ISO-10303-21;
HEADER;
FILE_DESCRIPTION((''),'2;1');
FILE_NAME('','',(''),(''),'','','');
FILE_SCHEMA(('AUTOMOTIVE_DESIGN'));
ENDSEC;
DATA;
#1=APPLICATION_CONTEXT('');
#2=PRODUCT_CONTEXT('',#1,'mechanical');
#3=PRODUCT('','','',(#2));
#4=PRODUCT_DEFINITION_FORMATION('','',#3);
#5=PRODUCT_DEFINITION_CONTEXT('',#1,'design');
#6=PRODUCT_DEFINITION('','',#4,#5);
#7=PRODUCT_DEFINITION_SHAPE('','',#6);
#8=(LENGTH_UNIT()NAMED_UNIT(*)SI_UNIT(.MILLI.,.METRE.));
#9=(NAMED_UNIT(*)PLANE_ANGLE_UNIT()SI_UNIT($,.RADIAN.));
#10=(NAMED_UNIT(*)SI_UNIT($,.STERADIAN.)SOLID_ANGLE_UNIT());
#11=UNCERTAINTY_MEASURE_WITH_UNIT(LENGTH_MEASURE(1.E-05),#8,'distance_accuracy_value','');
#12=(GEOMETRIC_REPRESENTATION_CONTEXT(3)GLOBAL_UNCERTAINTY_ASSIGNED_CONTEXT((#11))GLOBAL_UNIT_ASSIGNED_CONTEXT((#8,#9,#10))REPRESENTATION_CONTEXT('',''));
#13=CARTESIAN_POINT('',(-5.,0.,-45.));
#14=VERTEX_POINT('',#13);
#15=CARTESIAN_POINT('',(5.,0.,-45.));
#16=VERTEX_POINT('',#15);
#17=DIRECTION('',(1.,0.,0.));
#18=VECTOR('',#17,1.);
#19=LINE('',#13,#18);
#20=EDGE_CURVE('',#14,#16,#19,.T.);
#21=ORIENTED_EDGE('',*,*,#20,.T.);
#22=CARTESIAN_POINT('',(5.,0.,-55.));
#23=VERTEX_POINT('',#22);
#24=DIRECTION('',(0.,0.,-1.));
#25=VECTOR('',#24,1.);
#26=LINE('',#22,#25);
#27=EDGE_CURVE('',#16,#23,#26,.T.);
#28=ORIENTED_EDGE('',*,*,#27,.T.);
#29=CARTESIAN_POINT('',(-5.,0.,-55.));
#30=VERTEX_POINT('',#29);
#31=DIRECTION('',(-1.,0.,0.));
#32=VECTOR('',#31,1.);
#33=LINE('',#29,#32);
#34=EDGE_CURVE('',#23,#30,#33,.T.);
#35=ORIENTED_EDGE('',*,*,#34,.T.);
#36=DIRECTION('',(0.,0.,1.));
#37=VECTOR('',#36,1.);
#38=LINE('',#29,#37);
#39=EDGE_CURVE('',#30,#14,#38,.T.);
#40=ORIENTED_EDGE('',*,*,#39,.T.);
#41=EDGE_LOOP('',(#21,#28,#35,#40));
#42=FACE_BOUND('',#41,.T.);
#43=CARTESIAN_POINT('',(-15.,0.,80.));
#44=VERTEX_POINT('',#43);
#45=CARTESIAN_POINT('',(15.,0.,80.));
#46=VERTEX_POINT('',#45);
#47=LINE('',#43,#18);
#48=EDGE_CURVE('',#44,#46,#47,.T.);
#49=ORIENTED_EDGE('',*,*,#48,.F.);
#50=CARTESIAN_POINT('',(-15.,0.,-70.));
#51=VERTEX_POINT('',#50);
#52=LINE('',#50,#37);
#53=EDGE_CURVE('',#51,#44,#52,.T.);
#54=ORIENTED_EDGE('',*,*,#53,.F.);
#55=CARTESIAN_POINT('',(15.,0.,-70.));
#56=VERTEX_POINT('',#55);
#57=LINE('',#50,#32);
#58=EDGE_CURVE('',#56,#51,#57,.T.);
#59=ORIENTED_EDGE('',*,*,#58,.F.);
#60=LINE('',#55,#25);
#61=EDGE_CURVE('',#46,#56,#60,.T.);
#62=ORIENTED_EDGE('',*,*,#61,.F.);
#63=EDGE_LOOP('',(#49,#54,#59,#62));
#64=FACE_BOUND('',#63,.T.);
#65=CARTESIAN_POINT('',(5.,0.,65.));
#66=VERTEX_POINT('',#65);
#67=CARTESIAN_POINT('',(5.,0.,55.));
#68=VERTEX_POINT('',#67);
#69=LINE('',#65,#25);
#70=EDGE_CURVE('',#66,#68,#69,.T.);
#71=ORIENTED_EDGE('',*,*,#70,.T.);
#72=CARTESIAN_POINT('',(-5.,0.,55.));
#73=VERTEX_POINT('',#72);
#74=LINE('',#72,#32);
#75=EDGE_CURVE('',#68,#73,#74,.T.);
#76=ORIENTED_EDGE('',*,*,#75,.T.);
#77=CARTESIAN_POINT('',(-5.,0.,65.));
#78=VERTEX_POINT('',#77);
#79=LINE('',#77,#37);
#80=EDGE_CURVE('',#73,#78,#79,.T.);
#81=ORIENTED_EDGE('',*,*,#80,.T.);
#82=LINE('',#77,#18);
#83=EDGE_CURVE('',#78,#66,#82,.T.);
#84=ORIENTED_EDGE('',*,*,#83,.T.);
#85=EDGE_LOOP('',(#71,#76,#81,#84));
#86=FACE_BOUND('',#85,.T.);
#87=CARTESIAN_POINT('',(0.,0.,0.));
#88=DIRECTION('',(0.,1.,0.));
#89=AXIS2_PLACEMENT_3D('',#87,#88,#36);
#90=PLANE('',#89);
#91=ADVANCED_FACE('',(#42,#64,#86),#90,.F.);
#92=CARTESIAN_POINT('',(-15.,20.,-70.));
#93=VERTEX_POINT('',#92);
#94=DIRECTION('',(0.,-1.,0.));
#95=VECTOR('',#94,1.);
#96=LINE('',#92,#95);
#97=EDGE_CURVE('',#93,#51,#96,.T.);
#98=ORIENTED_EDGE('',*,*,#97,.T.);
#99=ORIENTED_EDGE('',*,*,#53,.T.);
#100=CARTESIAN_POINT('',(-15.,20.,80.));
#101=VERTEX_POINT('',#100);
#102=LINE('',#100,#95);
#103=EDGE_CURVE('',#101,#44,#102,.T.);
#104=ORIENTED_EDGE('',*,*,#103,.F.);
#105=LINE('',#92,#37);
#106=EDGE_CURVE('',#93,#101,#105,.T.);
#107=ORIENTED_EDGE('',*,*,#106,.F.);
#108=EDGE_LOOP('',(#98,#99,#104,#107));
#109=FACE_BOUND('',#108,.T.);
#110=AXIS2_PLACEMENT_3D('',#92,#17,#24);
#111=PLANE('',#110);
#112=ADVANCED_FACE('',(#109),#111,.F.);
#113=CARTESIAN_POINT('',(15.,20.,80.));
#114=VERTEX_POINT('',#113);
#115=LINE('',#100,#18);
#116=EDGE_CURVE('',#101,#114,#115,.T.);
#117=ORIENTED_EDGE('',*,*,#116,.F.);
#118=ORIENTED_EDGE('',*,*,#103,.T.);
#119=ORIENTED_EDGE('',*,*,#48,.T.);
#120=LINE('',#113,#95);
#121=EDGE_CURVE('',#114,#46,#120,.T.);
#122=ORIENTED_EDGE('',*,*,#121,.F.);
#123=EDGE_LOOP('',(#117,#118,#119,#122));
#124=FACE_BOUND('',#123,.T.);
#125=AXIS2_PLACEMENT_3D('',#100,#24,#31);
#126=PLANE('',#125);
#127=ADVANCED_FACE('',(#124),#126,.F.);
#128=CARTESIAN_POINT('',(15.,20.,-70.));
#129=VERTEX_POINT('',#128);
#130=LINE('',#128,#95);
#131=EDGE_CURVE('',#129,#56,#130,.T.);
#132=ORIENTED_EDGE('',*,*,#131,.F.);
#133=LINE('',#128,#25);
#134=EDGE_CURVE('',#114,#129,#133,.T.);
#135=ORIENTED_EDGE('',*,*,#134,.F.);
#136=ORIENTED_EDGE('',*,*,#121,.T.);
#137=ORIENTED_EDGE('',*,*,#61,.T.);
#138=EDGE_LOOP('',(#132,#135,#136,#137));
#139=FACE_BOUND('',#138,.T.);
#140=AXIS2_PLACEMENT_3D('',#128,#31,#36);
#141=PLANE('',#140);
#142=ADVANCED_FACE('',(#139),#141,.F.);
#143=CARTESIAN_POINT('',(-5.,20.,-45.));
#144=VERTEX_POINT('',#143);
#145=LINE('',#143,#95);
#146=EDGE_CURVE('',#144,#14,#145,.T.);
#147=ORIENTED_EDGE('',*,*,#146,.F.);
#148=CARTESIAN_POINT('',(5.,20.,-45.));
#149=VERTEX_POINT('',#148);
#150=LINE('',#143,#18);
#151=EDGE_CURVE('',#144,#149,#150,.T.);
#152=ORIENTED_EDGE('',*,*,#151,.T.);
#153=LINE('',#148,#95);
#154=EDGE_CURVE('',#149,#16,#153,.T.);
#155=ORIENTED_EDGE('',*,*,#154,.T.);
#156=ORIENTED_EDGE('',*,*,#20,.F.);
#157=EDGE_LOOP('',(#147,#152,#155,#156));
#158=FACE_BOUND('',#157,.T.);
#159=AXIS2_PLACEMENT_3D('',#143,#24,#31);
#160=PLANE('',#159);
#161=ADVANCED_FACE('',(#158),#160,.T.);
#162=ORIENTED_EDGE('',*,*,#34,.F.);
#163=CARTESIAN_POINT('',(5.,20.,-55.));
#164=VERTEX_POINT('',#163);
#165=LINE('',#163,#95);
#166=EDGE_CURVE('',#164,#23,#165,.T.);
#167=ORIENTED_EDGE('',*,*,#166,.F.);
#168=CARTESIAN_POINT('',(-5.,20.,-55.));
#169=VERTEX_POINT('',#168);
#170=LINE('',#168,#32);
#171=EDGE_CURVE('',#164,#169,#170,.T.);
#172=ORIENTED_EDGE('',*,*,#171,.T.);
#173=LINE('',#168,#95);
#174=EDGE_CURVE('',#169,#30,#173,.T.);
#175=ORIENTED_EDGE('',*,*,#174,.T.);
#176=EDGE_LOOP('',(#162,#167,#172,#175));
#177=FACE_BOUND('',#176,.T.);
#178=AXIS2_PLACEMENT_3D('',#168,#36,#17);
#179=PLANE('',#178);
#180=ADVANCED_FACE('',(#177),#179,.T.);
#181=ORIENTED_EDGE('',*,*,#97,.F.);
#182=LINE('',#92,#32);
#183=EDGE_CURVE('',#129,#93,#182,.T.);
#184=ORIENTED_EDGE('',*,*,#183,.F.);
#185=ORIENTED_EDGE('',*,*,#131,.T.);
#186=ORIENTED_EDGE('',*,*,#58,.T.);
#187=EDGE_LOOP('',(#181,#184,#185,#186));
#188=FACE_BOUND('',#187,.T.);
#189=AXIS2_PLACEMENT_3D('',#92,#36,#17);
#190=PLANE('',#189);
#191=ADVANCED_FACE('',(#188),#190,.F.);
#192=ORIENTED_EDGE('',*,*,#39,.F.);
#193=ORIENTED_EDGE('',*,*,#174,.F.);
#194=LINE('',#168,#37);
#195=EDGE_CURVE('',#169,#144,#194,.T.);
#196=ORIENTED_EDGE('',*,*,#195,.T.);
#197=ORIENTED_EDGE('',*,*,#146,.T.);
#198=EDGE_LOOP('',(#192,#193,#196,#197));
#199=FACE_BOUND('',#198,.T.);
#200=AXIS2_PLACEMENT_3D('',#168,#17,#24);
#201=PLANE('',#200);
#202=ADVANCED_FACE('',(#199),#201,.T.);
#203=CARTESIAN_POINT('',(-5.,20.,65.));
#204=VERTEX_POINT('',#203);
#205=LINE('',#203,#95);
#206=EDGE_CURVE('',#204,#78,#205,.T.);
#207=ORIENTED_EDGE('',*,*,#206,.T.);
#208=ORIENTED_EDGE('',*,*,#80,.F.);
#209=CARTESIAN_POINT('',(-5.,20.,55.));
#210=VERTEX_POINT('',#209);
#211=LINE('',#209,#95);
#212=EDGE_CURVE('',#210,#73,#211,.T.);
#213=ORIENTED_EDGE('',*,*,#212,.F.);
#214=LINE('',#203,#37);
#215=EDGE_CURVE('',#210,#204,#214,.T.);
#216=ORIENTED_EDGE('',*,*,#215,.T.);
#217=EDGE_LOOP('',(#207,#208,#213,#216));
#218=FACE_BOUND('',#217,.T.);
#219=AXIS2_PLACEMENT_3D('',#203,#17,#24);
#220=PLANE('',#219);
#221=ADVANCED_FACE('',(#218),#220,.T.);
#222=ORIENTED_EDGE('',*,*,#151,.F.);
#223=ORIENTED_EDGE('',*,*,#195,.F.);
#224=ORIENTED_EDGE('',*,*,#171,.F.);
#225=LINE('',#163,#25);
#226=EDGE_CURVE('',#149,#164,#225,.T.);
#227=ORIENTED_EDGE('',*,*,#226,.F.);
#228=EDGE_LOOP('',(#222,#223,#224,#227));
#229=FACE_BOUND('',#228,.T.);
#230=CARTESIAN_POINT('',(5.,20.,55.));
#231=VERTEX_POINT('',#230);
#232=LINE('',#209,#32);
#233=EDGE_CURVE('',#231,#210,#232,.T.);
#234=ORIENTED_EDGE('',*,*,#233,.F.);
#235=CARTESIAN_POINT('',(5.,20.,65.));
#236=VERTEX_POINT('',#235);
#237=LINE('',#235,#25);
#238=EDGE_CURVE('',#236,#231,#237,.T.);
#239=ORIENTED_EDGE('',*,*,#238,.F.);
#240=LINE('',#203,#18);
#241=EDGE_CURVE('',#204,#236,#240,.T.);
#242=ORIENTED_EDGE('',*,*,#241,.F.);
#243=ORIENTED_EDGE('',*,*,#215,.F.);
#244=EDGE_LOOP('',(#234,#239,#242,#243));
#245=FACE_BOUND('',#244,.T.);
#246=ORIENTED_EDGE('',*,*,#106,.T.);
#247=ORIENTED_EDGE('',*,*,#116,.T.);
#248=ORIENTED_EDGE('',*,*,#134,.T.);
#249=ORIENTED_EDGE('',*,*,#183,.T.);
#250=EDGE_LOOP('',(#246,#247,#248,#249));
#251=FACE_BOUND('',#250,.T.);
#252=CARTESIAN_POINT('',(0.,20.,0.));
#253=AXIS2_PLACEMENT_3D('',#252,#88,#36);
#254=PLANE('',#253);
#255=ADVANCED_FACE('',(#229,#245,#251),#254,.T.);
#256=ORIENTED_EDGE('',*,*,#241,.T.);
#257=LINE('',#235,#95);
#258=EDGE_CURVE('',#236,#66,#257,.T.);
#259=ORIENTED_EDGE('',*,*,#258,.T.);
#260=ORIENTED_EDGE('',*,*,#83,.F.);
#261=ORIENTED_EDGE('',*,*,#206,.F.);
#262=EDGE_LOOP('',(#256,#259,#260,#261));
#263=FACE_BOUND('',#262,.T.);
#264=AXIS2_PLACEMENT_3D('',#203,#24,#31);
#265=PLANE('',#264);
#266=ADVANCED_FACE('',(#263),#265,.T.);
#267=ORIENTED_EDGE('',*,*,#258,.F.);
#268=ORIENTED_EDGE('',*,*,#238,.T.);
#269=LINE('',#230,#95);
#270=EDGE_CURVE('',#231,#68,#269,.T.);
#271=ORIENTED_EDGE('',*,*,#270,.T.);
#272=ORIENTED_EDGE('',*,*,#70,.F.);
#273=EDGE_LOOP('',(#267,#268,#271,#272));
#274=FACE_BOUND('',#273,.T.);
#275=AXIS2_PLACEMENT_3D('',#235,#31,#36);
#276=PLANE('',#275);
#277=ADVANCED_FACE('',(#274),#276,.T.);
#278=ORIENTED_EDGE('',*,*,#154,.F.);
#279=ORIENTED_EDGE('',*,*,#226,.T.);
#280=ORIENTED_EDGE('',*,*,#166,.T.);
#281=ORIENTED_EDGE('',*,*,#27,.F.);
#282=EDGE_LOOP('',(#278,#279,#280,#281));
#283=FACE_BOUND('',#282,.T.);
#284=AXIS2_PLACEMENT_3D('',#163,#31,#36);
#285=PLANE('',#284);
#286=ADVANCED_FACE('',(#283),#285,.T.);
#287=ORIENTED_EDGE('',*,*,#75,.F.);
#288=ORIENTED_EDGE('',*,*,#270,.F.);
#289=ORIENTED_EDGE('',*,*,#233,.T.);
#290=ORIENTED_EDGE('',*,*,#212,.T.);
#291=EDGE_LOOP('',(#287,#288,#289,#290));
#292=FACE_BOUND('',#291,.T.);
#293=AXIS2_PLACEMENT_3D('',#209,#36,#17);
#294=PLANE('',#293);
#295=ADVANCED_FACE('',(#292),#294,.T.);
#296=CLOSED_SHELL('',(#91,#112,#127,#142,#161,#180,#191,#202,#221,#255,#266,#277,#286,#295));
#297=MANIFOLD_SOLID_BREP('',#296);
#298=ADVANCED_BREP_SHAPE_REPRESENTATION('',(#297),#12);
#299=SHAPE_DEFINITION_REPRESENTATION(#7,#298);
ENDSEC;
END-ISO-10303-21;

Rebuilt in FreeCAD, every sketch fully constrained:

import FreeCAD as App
import Part
import Sketcher

V = App.Vector
Q = App.Units.Quantity

doc = App.newDocument("Part")
body = doc.addObject("PartDesign::Body", "Body")

# Sketch on XZ plane
sketch1 = body.newObject("Sketcher::SketchObject", "Sketch")
sketch1.AttachmentSupport = (doc.getObject("XZ_Plane"), [""])
sketch1.MapMode = "FlatFace"
sketch1.addGeometry(Part.LineSegment(V(-15, -70, 0), V(-15, 80, 0)), False)
sketch1.addGeometry(Part.LineSegment(V(-15, 80, 0), V(15, 80, 0)), False)
sketch1.addGeometry(Part.LineSegment(V(15, 80, 0), V(15, -70, 0)), False)
sketch1.addGeometry(Part.LineSegment(V(15, -70, 0), V(-15, -70, 0)), False)
sketch1.addGeometry(Part.LineSegment(V(5, 65, 0), V(-5, 65, 0)), False)
sketch1.addGeometry(Part.LineSegment(V(-5, 65, 0), V(-5, 55, 0)), False)
sketch1.addGeometry(Part.LineSegment(V(-5, 55, 0), V(5, 55, 0)), False)
sketch1.addGeometry(Part.LineSegment(V(5, 55, 0), V(5, 65, 0)), False)
sketch1.addGeometry(Part.LineSegment(V(5, -45, 0), V(-5, -45, 0)), False)
sketch1.addGeometry(Part.LineSegment(V(-5, -45, 0), V(-5, -55, 0)), False)
sketch1.addGeometry(Part.LineSegment(V(-5, -55, 0), V(5, -55, 0)), False)
sketch1.addGeometry(Part.LineSegment(V(5, -55, 0), V(5, -45, 0)), False)
sketch1.addConstraint(Sketcher.Constraint("Coincident", 0, 2, 1, 1))
sketch1.addConstraint(Sketcher.Constraint("Coincident", 1, 2, 2, 1))
sketch1.addConstraint(Sketcher.Constraint("Coincident", 2, 2, 3, 1))
sketch1.addConstraint(Sketcher.Constraint("Coincident", 3, 2, 0, 1))
sketch1.addConstraint(Sketcher.Constraint("Coincident", 4, 2, 5, 1))
sketch1.addConstraint(Sketcher.Constraint("Coincident", 5, 2, 6, 1))
sketch1.addConstraint(Sketcher.Constraint("Coincident", 6, 2, 7, 1))
sketch1.addConstraint(Sketcher.Constraint("Coincident", 7, 2, 4, 1))
sketch1.addConstraint(Sketcher.Constraint("Coincident", 8, 2, 9, 1))
sketch1.addConstraint(Sketcher.Constraint("Coincident", 9, 2, 10, 1))
sketch1.addConstraint(Sketcher.Constraint("Coincident", 10, 2, 11, 1))
sketch1.addConstraint(Sketcher.Constraint("Coincident", 11, 2, 8, 1))
sketch1.addConstraint(Sketcher.Constraint("Vertical", 0))
sketch1.addConstraint(Sketcher.Constraint("Horizontal", 1))
sketch1.addConstraint(Sketcher.Constraint("Vertical", 2))
sketch1.addConstraint(Sketcher.Constraint("Horizontal", 3))
sketch1.addConstraint(Sketcher.Constraint("Horizontal", 4))
sketch1.addConstraint(Sketcher.Constraint("Vertical", 5))
sketch1.addConstraint(Sketcher.Constraint("Horizontal", 6))
sketch1.addConstraint(Sketcher.Constraint("Vertical", 7))
sketch1.addConstraint(Sketcher.Constraint("Horizontal", 8))
sketch1.addConstraint(Sketcher.Constraint("Vertical", 9))
sketch1.addConstraint(Sketcher.Constraint("Horizontal", 10))
sketch1.addConstraint(Sketcher.Constraint("Vertical", 11))
sketch1.addConstraint(Sketcher.Constraint("Symmetric", 6, 2, 9, 2, -1, 1))
sketch1.addConstraint(Sketcher.Constraint("Vertical", 5, 2, 8, 2))
sketch1.addConstraint(Sketcher.Constraint("Vertical", 7, 2, 10, 2))
sketch1.addConstraint(Sketcher.Constraint("Equal", 10, 5))
sketch1.addConstraint(Sketcher.Constraint("Equal", 7, 9))
sketch1.addConstraint(Sketcher.Constraint("DistanceX", 1, 1, 1, 2, Q("30 mm")))
sketch1.addConstraint(Sketcher.Constraint("DistanceX", 4, 2, 4, 1, Q("10 mm")))
sketch1.addConstraint(Sketcher.Constraint("DistanceY", 0, 1, 0, 2, Q("150 mm")))
sketch1.addConstraint(Sketcher.Constraint("DistanceX", 0, 2, -1, 1, Q("15 mm")))
sketch1.addConstraint(Sketcher.Constraint("DistanceY", -1, 1, 0, 2, Q("80 mm")))
sketch1.addConstraint(Sketcher.Constraint("DistanceY", -1, 1, 4, 2, Q("65 mm")))
pad1 = body.newObject("PartDesign::Pad", "Pad")
pad1.Profile = sketch1
pad1.Length = 20
pad1.Reversed = True

doc.recompute()
